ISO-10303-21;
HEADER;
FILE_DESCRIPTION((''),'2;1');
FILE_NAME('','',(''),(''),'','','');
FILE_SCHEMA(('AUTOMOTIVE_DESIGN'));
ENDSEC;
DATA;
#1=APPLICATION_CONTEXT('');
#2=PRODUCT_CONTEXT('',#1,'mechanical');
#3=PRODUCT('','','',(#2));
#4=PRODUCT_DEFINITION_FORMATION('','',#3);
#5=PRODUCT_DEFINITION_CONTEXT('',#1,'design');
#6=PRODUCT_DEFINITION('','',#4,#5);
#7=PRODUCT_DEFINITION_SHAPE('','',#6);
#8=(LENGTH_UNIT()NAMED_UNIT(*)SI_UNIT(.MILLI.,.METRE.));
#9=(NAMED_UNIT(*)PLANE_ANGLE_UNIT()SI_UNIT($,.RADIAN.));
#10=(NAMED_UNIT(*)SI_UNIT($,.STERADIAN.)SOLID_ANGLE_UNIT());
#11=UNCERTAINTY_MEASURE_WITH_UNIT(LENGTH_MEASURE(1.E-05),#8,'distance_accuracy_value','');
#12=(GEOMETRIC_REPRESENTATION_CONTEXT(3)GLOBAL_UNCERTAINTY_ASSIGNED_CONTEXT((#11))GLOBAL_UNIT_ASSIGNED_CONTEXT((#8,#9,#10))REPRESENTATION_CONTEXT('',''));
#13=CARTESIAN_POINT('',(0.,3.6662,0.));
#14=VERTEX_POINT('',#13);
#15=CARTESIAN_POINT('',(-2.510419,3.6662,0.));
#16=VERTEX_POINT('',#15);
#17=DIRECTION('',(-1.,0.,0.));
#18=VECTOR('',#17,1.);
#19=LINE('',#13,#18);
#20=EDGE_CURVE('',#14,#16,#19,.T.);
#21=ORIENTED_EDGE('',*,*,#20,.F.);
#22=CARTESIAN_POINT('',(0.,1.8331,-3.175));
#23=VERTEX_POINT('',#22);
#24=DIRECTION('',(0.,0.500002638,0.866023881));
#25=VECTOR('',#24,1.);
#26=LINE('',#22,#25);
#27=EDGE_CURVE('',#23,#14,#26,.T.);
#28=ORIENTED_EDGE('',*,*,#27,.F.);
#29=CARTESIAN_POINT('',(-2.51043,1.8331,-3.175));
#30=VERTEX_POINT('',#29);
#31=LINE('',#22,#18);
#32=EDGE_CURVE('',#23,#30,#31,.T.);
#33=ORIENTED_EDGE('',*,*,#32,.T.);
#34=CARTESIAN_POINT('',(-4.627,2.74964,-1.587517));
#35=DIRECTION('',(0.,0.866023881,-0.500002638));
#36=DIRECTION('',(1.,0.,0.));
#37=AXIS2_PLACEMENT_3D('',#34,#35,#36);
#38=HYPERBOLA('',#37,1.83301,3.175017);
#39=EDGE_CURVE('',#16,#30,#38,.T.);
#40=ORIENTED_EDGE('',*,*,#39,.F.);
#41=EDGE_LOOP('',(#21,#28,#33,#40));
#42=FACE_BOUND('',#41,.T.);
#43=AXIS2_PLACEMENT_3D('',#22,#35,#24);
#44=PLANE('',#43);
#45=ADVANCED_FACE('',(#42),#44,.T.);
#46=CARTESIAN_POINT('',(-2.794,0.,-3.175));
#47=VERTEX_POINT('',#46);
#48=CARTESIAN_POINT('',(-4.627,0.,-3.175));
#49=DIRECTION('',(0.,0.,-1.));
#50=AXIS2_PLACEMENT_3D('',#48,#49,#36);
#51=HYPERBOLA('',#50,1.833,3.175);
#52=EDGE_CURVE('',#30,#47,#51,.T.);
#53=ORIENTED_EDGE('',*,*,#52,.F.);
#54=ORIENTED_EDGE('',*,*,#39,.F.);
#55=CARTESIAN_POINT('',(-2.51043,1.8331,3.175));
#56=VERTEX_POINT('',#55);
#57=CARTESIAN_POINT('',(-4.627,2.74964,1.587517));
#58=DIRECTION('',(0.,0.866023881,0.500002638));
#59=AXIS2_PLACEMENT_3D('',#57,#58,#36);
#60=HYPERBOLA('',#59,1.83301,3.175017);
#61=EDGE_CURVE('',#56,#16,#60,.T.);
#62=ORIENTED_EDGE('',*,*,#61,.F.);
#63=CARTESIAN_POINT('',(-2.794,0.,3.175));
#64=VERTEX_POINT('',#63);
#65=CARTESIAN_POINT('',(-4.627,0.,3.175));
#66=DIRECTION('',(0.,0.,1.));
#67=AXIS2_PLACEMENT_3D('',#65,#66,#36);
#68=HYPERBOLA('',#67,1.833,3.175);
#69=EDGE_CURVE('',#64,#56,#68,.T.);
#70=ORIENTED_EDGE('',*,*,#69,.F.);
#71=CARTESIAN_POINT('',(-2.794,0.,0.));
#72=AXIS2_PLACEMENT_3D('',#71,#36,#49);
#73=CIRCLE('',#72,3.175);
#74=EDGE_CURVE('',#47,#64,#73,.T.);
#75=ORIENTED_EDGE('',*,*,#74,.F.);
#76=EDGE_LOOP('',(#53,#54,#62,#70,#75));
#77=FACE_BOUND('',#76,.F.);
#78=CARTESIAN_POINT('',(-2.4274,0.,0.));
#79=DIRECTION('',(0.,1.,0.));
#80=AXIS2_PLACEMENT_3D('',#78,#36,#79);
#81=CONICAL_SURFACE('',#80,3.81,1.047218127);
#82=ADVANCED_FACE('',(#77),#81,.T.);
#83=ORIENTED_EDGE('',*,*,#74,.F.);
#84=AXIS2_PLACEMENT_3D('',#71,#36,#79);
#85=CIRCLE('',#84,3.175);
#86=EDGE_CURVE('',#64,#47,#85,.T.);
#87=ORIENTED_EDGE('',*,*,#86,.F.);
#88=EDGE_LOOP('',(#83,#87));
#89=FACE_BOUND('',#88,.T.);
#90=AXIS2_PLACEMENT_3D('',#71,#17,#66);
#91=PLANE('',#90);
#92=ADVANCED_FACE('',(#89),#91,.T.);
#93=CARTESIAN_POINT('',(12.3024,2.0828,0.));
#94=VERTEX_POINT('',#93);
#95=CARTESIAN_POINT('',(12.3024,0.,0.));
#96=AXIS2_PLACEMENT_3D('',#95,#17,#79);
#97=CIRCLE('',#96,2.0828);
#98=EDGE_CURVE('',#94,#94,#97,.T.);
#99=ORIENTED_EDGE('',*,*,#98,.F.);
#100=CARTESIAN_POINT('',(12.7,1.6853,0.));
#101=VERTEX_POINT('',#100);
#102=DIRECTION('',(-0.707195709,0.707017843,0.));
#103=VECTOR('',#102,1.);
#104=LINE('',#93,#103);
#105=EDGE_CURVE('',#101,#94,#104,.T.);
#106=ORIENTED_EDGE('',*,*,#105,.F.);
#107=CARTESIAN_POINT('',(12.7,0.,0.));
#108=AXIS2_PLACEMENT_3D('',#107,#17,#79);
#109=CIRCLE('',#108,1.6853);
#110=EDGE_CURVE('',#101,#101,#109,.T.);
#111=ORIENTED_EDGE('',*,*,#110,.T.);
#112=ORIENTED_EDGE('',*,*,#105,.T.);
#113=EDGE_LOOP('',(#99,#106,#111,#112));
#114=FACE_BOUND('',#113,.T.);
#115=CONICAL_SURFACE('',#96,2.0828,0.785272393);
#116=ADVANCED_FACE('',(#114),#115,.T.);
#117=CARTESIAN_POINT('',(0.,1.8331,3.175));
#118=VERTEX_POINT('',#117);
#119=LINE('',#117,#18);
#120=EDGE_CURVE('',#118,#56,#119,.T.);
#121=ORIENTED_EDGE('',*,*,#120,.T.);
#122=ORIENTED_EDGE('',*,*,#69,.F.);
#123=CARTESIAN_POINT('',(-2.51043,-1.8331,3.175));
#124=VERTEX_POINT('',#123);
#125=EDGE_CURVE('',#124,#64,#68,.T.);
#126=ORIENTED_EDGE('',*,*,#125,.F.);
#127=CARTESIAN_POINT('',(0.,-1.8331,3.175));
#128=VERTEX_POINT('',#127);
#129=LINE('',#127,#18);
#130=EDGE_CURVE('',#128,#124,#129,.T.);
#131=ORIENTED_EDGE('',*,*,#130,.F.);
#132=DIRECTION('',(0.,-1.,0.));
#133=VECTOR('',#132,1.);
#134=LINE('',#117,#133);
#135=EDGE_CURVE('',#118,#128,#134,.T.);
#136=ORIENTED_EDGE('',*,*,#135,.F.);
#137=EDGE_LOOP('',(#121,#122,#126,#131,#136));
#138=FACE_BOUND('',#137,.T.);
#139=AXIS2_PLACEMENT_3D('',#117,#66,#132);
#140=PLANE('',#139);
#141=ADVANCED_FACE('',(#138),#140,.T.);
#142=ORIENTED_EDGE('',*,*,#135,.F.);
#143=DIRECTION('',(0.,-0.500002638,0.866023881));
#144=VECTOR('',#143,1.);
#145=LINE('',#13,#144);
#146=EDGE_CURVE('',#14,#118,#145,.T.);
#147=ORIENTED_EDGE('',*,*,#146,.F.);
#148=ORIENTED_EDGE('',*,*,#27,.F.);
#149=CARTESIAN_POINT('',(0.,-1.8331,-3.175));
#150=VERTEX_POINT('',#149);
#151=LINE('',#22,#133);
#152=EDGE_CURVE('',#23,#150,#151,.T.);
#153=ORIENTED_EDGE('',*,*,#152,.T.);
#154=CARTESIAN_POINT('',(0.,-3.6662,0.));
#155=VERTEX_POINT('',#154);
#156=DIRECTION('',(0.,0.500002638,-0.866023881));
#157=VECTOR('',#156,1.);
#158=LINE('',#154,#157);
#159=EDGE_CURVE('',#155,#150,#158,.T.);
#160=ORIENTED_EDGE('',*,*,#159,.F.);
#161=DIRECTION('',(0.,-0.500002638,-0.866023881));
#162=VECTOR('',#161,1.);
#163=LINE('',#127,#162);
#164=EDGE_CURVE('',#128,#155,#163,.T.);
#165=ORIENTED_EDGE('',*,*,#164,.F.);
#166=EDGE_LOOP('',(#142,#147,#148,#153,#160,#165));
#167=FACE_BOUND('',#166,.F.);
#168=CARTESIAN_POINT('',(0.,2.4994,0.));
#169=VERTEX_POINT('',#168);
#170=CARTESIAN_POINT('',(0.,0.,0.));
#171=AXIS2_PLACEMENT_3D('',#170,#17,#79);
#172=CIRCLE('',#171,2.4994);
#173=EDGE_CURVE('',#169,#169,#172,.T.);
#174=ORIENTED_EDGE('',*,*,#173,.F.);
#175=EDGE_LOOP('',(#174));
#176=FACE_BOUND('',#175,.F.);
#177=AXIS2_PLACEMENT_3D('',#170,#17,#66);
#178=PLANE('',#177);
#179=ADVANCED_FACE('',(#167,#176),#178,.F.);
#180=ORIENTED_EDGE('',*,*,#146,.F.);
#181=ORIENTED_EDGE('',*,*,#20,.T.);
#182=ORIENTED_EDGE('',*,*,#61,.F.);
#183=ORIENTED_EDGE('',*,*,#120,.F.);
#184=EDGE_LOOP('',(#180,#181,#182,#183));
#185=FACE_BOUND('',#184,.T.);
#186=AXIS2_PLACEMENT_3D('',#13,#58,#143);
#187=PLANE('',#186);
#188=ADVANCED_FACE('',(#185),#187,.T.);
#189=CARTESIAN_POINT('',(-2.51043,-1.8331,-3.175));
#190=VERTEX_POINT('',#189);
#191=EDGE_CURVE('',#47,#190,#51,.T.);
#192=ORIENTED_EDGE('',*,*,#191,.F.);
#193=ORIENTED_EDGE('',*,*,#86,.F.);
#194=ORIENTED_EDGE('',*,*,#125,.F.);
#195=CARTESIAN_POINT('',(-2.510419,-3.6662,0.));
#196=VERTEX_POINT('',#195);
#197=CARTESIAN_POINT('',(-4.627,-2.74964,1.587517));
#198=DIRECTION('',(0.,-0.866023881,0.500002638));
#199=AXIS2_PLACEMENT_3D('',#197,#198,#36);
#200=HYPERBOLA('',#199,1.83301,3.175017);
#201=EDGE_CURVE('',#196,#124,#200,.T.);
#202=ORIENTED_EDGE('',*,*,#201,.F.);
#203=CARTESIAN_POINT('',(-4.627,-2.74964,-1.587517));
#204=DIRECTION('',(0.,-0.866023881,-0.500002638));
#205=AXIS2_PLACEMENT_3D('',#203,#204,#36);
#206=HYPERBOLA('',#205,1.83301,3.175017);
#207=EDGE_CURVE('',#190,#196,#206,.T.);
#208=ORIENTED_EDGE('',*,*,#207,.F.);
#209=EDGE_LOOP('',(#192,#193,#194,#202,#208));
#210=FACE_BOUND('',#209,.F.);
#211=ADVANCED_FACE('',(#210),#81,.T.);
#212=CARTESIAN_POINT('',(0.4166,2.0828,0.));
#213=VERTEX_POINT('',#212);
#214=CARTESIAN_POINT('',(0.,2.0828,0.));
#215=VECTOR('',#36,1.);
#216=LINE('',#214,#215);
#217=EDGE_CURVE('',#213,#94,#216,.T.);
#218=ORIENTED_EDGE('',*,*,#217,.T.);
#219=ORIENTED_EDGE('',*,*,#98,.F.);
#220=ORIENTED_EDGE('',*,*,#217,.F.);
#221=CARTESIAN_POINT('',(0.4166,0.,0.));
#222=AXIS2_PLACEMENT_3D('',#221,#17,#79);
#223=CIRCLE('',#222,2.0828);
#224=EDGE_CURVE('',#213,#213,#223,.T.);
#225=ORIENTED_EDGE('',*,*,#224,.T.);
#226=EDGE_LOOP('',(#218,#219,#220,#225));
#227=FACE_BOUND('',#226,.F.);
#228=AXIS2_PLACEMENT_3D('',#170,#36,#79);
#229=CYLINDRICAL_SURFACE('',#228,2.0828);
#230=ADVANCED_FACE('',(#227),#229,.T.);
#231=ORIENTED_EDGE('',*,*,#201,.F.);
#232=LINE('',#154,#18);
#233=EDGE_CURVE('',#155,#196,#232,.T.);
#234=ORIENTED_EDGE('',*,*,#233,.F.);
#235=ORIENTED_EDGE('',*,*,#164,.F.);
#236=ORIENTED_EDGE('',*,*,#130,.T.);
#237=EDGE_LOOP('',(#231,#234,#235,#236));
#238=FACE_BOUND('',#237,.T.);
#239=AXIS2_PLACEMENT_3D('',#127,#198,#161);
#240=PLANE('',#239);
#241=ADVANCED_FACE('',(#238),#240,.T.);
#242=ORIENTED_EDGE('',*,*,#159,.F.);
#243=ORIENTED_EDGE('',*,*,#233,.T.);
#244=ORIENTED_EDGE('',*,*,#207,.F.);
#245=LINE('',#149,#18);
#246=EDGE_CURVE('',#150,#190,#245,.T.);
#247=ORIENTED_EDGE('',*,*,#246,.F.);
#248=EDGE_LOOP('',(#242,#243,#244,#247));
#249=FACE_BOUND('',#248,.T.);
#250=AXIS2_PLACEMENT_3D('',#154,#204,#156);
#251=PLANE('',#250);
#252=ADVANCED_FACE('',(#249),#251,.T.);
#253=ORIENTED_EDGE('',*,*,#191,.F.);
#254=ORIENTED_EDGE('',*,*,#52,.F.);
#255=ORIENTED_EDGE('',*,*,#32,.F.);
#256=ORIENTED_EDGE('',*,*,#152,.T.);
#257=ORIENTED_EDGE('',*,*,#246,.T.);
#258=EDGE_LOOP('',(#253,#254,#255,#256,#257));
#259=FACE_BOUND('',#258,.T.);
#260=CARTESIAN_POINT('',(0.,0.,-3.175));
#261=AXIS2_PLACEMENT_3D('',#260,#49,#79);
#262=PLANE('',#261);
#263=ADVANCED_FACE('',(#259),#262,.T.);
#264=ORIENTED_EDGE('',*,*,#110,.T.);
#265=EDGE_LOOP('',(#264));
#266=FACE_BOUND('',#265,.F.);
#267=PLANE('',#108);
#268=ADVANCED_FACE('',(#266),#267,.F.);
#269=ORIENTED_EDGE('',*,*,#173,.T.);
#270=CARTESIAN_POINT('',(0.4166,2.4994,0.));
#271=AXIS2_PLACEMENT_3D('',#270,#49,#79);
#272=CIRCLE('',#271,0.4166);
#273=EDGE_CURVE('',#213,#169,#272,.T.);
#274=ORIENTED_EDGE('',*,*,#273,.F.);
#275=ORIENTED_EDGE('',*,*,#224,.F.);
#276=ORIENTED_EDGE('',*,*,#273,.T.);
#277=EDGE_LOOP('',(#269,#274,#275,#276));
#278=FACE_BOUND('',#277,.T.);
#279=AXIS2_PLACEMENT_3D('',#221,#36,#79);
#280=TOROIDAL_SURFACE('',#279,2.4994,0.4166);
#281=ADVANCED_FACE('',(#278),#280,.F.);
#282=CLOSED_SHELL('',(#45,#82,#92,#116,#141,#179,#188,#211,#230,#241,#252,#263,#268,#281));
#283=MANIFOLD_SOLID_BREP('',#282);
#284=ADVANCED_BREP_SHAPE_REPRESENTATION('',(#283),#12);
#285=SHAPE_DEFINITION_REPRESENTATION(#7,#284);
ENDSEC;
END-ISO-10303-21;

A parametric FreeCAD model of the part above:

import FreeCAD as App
import Part
import Sketcher
Q = App.Units.Quantity


def edges_at(feature, points):
    """Names of the edges that pass closest to the given points."""
    edges = feature.Shape.Edges
    near = lambda p: min(range(len(edges)), key=lambda i: edges[i].distToShape(Part.Vertex(*p))[0])
    return sorted({f"Edge{near(p) + 1}" for p in points})

doc = App.newDocument("Part")
body = doc.addObject("PartDesign::Body", "Body")

# Sketch on XY plane
sketch1 = body.newObject("Sketcher::SketchObject", "Sketch")
sketch1.AttachmentSupport = (doc.getObject("XY_Plane"), [""])
sketch1.MapMode = "FlatFace"
sketch1.addGeometry([
    Part.LineSegment(App.Vector(12.7, 2.1, 0), App.Vector(0, 2.1, 0)),
    Part.LineSegment(App.Vector(0, 2.1, 0), App.Vector(0, 0, 0)),
    Part.LineSegment(App.Vector(0, 0, 0), App.Vector(12.7, 0, 0)),
    Part.LineSegment(App.Vector(12.7, 0, 0), App.Vector(12.7, 2.1, 0)),
], False)
sketch1.addConstraint([
    Sketcher.Constraint("Coincident", 0, 2, 1, 1),
    Sketcher.Constraint("Coincident", 1, 2, 2, 1),
    Sketcher.Constraint("Coincident", 2, 2, 3, 1),
    Sketcher.Constraint("Coincident", 3, 2, 0, 1),
    Sketcher.Constraint("Horizontal", 0),
    Sketcher.Constraint("Vertical", 1),
    Sketcher.Constraint("Horizontal", 2),
    Sketcher.Constraint("Vertical", 3),
    Sketcher.Constraint("Coincident", 1, 2, -1, 1),
    Sketcher.Constraint("DistanceX", 0, 2, 0, 1, Q("0.5 in")),
    Sketcher.Constraint("DistanceY", 1, 2, 1, 1, Q("0.082 in")),
])
revolution = body.newObject("PartDesign::Revolution", "Revolution")
revolution.Profile = sketch1
revolution.ReferenceAxis = (sketch1, ["H_Axis"])
revolution.Angle = 360

# Sketch on YZ plane
sketch2 = body.newObject("Sketcher::SketchObject", "Sketch001")
sketch2.AttachmentSupport = (doc.getObject("YZ_Plane"), [""])
sketch2.MapMode = "FlatFace"
sketch2.addGeometry([
    Part.LineSegment(App.Vector(1.8, -3.2, 0), App.Vector(-1.8, -3.2, 0)),  # 0
    Part.LineSegment(App.Vector(-1.8, -3.2, 0), App.Vector(-3.7, 0, 0)),  # 1
    Part.LineSegment(App.Vector(-3.7, 0, 0), App.Vector(-1.8, 3.2, 0)),  # 2
    Part.LineSegment(App.Vector(-1.8, 3.2, 0), App.Vector(1.8, 3.2, 0)),  # 3
    Part.LineSegment(App.Vector(1.8, 3.2, 0), App.Vector(3.7, 0, 0)),  # 4
    Part.LineSegment(App.Vector(3.7, 0, 0), App.Vector(1.8, -3.2, 0)),  # 5
], False)
sketch2.addConstraint([
    Sketcher.Constraint("Coincident", 0, 2, 1, 1),
    Sketcher.Constraint("Coincident", 1, 2, 2, 1),
    Sketcher.Constraint("Coincident", 2, 2, 3, 1),
    Sketcher.Constraint("Coincident", 3, 2, 4, 1),
    Sketcher.Constraint("Coincident", 4, 2, 5, 1),
    Sketcher.Constraint("Coincident", 5, 2, 0, 1),
    Sketcher.Constraint("Horizontal", 0),
    Sketcher.Constraint("Horizontal", 3),
    Sketcher.Constraint("Symmetric", 0, 2, 3, 2, -1, 1),
    Sketcher.Constraint("Symmetric", 1, 2, 4, 2, -1, 1),
    Sketcher.Constraint("PointOnObject", 1, 2, -1),
    Sketcher.Constraint("Parallel", 2, 5),
    Sketcher.Constraint("Vertical", 0, 2, 2, 2),
    Sketcher.Constraint("DistanceY", 0, 2, 2, 2, Q("0.25 in")),
    Sketcher.Constraint("Angle", 1, Q("120.0002 deg")),
    Sketcher.Constraint("DistanceX", 0, 2, 0, 1, 3.6662),
])
pad1 = body.newObject("PartDesign::Pad", "Pad")
pad1.Profile = sketch2
pad1.Length = Q("0.11 in")
pad1.Reversed = True

# Sketch on XY plane
sketch3 = body.newObject("Sketcher::SketchObject", "Sketch002")
sketch3.AttachmentSupport = (doc.getObject("XY_Plane"), [""])
sketch3.MapMode = "FlatFace"
sketch3.addGeometry([
    Part.LineSegment(App.Vector(-2.79, 3.17, 0), App.Vector(-2.43, 3.81, 0)),
    Part.LineSegment(App.Vector(-2.43, 3.81, 0), App.Vector(-2.79, 3.81, 0)),
    Part.LineSegment(App.Vector(-2.79, 3.81, 0), App.Vector(-2.79, 3.17, 0)),
], False)
sketch3.addConstraint([
    Sketcher.Constraint("Coincident", 0, 2, 1, 1),
    Sketcher.Constraint("Coincident", 1, 2, 2, 1),
    Sketcher.Constraint("Coincident", 2, 2, 0, 1),
    Sketcher.Constraint("Horizontal", 1),
    Sketcher.Constraint("Vertical", 2),
    Sketcher.Constraint("DistanceX", 1, 2, -1, 1, Q("0.11 in")),
    Sketcher.Constraint("Angle", 0, Q("60.0012 deg")),
    Sketcher.Constraint("DistanceY", 2, 2, 2, 1, Q("0.025 in")),
    Sketcher.Constraint("DistanceY", -1, 1, 0, 2, Q("0.15 in")),
])
groove = body.newObject("PartDesign::Groove", "Groove")
groove.Profile = sketch3
groove.ReferenceAxis = (sketch3, ["H_Axis"])
groove.Angle = 360
doc.recompute()

chamfer = body.newObject("PartDesign::Chamfer", "Chamfer")
chamfer.Base = (groove, edges_at(groove, [(12.7, -2.083, 0)]))
chamfer.ChamferType = "Two distances"
chamfer.Size = 0.3975
chamfer.Size2 = 0.3976
doc.recompute()

fillet = body.newObject("PartDesign::Fillet", "Fillet")
fillet.Base = (chamfer, edges_at(chamfer, [(0, -2.083, 0)]))
fillet.Radius = Q("0.0164016 in")

doc.recompute()
